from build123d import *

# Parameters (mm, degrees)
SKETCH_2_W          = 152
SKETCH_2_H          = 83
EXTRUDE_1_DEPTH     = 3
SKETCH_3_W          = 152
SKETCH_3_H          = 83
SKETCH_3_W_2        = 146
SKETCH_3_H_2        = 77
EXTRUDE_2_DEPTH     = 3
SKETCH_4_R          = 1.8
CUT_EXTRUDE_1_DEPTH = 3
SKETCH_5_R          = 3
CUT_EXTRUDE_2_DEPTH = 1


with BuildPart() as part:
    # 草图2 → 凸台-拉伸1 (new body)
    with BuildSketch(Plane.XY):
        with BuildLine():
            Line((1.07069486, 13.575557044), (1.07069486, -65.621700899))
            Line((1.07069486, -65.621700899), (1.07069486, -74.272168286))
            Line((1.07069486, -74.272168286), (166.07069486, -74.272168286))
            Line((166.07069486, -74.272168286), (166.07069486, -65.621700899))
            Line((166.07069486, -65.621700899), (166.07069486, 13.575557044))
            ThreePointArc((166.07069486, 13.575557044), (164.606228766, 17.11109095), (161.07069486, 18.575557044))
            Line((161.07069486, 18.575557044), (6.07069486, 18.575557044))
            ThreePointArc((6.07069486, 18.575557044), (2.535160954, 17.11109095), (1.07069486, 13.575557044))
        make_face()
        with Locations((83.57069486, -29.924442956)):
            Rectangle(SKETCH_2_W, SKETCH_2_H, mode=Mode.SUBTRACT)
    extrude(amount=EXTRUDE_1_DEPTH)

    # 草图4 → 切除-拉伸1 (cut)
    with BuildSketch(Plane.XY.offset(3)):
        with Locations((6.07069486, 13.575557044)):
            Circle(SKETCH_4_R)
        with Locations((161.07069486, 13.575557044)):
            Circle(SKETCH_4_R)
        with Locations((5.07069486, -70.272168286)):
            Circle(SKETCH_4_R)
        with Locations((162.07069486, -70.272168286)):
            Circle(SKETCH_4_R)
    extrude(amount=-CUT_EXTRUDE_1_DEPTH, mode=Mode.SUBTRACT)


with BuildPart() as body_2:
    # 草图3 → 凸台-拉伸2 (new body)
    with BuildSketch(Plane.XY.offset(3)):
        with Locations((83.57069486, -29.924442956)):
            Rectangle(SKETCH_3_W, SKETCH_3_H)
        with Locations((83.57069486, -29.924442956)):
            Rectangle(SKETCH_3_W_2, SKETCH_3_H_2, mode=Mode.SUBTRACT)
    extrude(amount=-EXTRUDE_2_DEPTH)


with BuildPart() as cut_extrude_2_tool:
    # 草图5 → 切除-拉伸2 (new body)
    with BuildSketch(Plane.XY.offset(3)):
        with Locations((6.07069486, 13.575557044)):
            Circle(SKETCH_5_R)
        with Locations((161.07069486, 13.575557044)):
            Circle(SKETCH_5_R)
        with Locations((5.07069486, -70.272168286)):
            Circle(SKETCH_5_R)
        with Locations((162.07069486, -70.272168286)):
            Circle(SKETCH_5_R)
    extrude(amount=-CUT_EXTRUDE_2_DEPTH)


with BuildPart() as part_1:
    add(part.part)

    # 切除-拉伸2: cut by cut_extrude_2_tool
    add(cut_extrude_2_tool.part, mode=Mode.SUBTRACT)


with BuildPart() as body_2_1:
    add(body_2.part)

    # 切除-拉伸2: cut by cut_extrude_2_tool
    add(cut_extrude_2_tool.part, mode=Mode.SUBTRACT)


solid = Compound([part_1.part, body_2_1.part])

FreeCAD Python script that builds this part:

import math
import FreeCAD as App
import Part
import Sketcher
from FreeCAD import Vector
Q = App.Units.Quantity


def add_polygon(sketch, points):
    """Adds a closed chain of lines whose ends are joined by coincident constraints."""
    first, n = sketch.GeometryCount, len(points)
    for a, b in zip(points, points[1:] + points[:1]):
        sketch.addGeometry(Part.LineSegment(App.Vector(*a, 0), App.Vector(*b, 0)), False)
    for i in range(n):
        sketch.addConstraint(Sketcher.Constraint("Coincident", first + i, 2, first + (i + 1) % n, 1))

doc = App.newDocument("Part")
body = doc.addObject("PartDesign::Body", "Body")

# Sketch on XY plane
sketch1 = body.newObject("Sketcher::SketchObject", "Sketch")
sketch1.AttachmentSupport = (doc.getObject("XY_Plane"), [""])
sketch1.MapMode = "FlatFace"
sketch1.addGeometry(Part.LineSegment(Vector(1, 14, 0), Vector(1, -74, 0)), False)  # 0
sketch1.addGeometry(Part.LineSegment(Vector(1, -74, 0), Vector(166, -74, 0)), False)  # 1
sketch1.addGeometry(Part.LineSegment(Vector(166, -74, 0), Vector(166, 14, 0)), False)  # 2
sketch1.addGeometry(Part.ArcOfCircle(Part.Circle(Vector(161, 14, 0), Vector(0, 0, 1), 5), math.radians(0), math.radians(90)), False)  # 3
sketch1.addGeometry(Part.LineSegment(Vector(161, 19, 0), Vector(6, 19, 0)), False)  # 4
sketch1.addGeometry(Part.ArcOfCircle(Part.Circle(Vector(6, 14, 0), Vector(0, 0, 1), 5), math.radians(90), math.radians(180)), False)  # 5
add_polygon(sketch1, [(160, -71), (8, -71), (8, 12), (160, 12)])  # lines 6-9
sketch1.addConstraint([
    Sketcher.Constraint("Coincident", 0, 2, 1, 1),
    Sketcher.Constraint("Coincident", 1, 2, 2, 1),
    Sketcher.Constraint("Tangent", 2, 2, 3, 1),
    Sketcher.Constraint("Tangent", 3, 2, 4, 1),
    Sketcher.Constraint("Tangent", 4, 2, 5, 1),
    Sketcher.Constraint("Tangent", 5, 2, 0, 1),
    Sketcher.Constraint("Vertical", 0),
    Sketcher.Constraint("Horizontal", 1),
    Sketcher.Constraint("Vertical", 2),
    Sketcher.Constraint("Horizontal", 4),
    Sketcher.Constraint("Horizontal", 6),
    Sketcher.Constraint("Vertical", 7),
    Sketcher.Constraint("Horizontal", 8),
    Sketcher.Constraint("Vertical", 9),
    Sketcher.Constraint("Equal", 3, 5),
    Sketcher.Constraint("Radius", 3, Q("5 mm")),
    Sketcher.Constraint("DistanceX", 1, 1, 1, 2, Q("165 mm")),
    Sketcher.Constraint("DistanceX", 6, 2, 6, 1, Q("152 mm")),
    Sketcher.Constraint("DistanceY", 7, 1, 7, 2, Q("83 mm")),
    Sketcher.Constraint("DistanceY", 6, 2, 5, 3, Q("85 mm")),
    Sketcher.Constraint("DistanceX", 0, 2, 6, 2, Q("6.5 mm")),
    Sketcher.Constraint("DistanceY", 0, 2, 0, 1, Q("87.847725 mm")),
    Sketcher.Constraint("DistanceY", 0, 2, -1, 1, Q("74.272168 mm")),
    Sketcher.Constraint("DistanceX", -1, 1, 3, 3, Q("161.070695 mm")),
])
pad1 = body.newObject("PartDesign::Pad", "Pad")
pad1.Profile = sketch1
pad1.Length = 3

# Sketch on XY plane
sketch2 = body.newObject("Sketcher::SketchObject", "Sketch001")
sketch2.AttachmentSupport = (doc.getObject("XY_Plane"), [""])
sketch2.MapMode = "FlatFace"
sketch2.AttachmentOffset = App.Placement(Vector(0, 0, 3), App.Rotation())
sketch2.addGeometry([
    Part.Circle(Vector(6.1, 13.6, 0), Vector(0, 0, 1), 1.8),
    Part.Circle(Vector(161.1, 13.6, 0), Vector(0, 0, 1), 1.8),
    Part.Circle(Vector(5.1, -70.3, 0), Vector(0, 0, 1), 1.8),
    Part.Circle(Vector(162.1, -70.3, 0), Vector(0, 0, 1), 1.8),
], False)
sketch2.addConstraint([
    Sketcher.Constraint("Equal", 0, 1),
    Sketcher.Constraint("Equal", 1, 2),
    Sketcher.Constraint("Equal", 2, 3),
    Sketcher.Constraint("Horizontal", 0, 3, 1, 3),
    Sketcher.Constraint("Horizontal", 2, 3, 3, 3),
    Sketcher.Constraint("Diameter", 0, Q("3.6 mm")),
    Sketcher.Constraint("DistanceX", 0, 3, 1, 3, Q("155 mm")),
    Sketcher.Constraint("DistanceX", 2, 3, 0, 3, Q("1 mm")),
    Sketcher.Constraint("DistanceX", 1, 3, 3, 3, Q("1 mm")),
    Sketcher.Constraint("DistanceY", 2, 3, -1, 1, Q("70.272168 mm")),
    Sketcher.Constraint("DistanceX", -1, 1, 0, 3, Q("6.070695 mm")),
    Sketcher.Constraint("DistanceY", -1, 1, 0, 3, Q("13.575557 mm")),
])
pocket1 = body.newObject("PartDesign::Pocket", "Pocket")
pocket1.Profile = sketch2
pocket1.Length = 3
body2 = doc.addObject("PartDesign::Body", "Body001")

# Sketch on XY plane
sketch3 = body2.newObject("Sketcher::SketchObject", "Sketch002")
sketch3.AttachmentSupport = (doc.getObject("XY_Plane001"), [""])
sketch3.MapMode = "FlatFace"
sketch3.AttachmentOffset = App.Placement(Vector(0, 0, 3), App.Rotation())
add_polygon(sketch3, [(8, 12), (8, -71), (160, -71), (160, 12)])  # lines 0-3
add_polygon(sketch3, [(157, -68), (11, -68), (11, 9), (157, 9)])  # lines 4-7
sketch3.addConstraint([
    Sketcher.Constraint("Vertical", 0),
    Sketcher.Constraint("Horizontal", 1),
    Sketcher.Constraint("Vertical", 2),
    Sketcher.Constraint("Horizontal", 3),
    Sketcher.Constraint("Horizontal", 4),
    Sketcher.Constraint("Vertical", 5),
    Sketcher.Constraint("Horizontal", 6),
    Sketcher.Constraint("Vertical", 7),
    Sketcher.Constraint("DistanceX", 1, 1, 1, 2, Q("152 mm")),
    Sketcher.Constraint("DistanceX", 4, 2, 4, 1, Q("146 mm")),
    Sketcher.Constraint("DistanceY", 0, 2, 0, 1, Q("83 mm")),
    Sketcher.Constraint("DistanceY", 5, 1, 5, 2, Q("77 mm")),
    Sketcher.Constraint("DistanceX", 0, 2, 4, 2, Q("3 mm")),
    Sketcher.Constraint("DistanceY", 0, 2, 4, 2, Q("3 mm")),
    Sketcher.Constraint("DistanceX", -1, 1, 0, 2, Q("7.570695 mm")),
    Sketcher.Constraint("DistanceY", 0, 2, -1, 1, Q("71.424443 mm")),
])
pad2 = body2.newObject("PartDesign::Pad", "Pad001")
pad2.Profile = sketch3
pad2.Length = 3
pad2.Reversed = True
body3 = doc.addObject("PartDesign::Body", "Body002")
body3.AllowCompound = True

# Sketch on XY plane
sketch4 = body3.newObject("Sketcher::SketchObject", "Sketch003")
sketch4.AttachmentSupport = (doc.getObject("XY_Plane002"), [""])
sketch4.MapMode = "FlatFace"
sketch4.AttachmentOffset = App.Placement(Vector(0, 0, 3), App.Rotation())
sketch4.addGeometry([
    Part.Circle(Vector(6.1, 13.6, 0), Vector(0, 0, 1), 3),
    Part.Circle(Vector(161.1, 13.6, 0), Vector(0, 0, 1), 3),
    Part.Circle(Vector(5.1, -70.3, 0), Vector(0, 0, 1), 3),
    Part.Circle(Vector(162.1, -70.3, 0), Vector(0, 0, 1), 3),
], False)
sketch4.addConstraint([
    Sketcher.Constraint("Equal", 0, 1),
    Sketcher.Constraint("Equal", 1, 2),
    Sketcher.Constraint("Equal", 2, 3),
    Sketcher.Constraint("Horizontal", 0, 3, 1, 3),
    Sketcher.Constraint("Horizontal", 2, 3, 3, 3),
    Sketcher.Constraint("Diameter", 0, Q("6 mm")),
    Sketcher.Constraint("DistanceX", 0, 3, 1, 3, Q("155 mm")),
    Sketcher.Constraint("DistanceX", 2, 3, 0, 3, Q("1 mm")),
    Sketcher.Constraint("DistanceX", 1, 3, 3, 3, Q("1 mm")),
    Sketcher.Constraint("DistanceY", 2, 3, -1, 1, Q("70.272168 mm")),
    Sketcher.Constraint("DistanceX", -1, 1, 0, 3, Q("6.070695 mm")),
    Sketcher.Constraint("DistanceY", -1, 1, 0, 3, Q("13.575557 mm")),
])
pad3 = body3.newObject("PartDesign::Pad", "Pad002")
pad3.Profile = sketch4
pad3.Length = 1
pad3.Reversed = True
doc.recompute()

body4 = doc.addObject("PartDesign::Body", "Body003")
body4.BaseFeature = body3
boolean = body.newObject("PartDesign::Boolean", "Boolean")
boolean.Type = "Cut"
boolean.addObjects([body4])
doc.recompute()

boolean2 = body2.newObject("PartDesign::Boolean", "Boolean001")
boolean2.Type = "Cut"
boolean2.addObjects([body3])

doc.recompute()
